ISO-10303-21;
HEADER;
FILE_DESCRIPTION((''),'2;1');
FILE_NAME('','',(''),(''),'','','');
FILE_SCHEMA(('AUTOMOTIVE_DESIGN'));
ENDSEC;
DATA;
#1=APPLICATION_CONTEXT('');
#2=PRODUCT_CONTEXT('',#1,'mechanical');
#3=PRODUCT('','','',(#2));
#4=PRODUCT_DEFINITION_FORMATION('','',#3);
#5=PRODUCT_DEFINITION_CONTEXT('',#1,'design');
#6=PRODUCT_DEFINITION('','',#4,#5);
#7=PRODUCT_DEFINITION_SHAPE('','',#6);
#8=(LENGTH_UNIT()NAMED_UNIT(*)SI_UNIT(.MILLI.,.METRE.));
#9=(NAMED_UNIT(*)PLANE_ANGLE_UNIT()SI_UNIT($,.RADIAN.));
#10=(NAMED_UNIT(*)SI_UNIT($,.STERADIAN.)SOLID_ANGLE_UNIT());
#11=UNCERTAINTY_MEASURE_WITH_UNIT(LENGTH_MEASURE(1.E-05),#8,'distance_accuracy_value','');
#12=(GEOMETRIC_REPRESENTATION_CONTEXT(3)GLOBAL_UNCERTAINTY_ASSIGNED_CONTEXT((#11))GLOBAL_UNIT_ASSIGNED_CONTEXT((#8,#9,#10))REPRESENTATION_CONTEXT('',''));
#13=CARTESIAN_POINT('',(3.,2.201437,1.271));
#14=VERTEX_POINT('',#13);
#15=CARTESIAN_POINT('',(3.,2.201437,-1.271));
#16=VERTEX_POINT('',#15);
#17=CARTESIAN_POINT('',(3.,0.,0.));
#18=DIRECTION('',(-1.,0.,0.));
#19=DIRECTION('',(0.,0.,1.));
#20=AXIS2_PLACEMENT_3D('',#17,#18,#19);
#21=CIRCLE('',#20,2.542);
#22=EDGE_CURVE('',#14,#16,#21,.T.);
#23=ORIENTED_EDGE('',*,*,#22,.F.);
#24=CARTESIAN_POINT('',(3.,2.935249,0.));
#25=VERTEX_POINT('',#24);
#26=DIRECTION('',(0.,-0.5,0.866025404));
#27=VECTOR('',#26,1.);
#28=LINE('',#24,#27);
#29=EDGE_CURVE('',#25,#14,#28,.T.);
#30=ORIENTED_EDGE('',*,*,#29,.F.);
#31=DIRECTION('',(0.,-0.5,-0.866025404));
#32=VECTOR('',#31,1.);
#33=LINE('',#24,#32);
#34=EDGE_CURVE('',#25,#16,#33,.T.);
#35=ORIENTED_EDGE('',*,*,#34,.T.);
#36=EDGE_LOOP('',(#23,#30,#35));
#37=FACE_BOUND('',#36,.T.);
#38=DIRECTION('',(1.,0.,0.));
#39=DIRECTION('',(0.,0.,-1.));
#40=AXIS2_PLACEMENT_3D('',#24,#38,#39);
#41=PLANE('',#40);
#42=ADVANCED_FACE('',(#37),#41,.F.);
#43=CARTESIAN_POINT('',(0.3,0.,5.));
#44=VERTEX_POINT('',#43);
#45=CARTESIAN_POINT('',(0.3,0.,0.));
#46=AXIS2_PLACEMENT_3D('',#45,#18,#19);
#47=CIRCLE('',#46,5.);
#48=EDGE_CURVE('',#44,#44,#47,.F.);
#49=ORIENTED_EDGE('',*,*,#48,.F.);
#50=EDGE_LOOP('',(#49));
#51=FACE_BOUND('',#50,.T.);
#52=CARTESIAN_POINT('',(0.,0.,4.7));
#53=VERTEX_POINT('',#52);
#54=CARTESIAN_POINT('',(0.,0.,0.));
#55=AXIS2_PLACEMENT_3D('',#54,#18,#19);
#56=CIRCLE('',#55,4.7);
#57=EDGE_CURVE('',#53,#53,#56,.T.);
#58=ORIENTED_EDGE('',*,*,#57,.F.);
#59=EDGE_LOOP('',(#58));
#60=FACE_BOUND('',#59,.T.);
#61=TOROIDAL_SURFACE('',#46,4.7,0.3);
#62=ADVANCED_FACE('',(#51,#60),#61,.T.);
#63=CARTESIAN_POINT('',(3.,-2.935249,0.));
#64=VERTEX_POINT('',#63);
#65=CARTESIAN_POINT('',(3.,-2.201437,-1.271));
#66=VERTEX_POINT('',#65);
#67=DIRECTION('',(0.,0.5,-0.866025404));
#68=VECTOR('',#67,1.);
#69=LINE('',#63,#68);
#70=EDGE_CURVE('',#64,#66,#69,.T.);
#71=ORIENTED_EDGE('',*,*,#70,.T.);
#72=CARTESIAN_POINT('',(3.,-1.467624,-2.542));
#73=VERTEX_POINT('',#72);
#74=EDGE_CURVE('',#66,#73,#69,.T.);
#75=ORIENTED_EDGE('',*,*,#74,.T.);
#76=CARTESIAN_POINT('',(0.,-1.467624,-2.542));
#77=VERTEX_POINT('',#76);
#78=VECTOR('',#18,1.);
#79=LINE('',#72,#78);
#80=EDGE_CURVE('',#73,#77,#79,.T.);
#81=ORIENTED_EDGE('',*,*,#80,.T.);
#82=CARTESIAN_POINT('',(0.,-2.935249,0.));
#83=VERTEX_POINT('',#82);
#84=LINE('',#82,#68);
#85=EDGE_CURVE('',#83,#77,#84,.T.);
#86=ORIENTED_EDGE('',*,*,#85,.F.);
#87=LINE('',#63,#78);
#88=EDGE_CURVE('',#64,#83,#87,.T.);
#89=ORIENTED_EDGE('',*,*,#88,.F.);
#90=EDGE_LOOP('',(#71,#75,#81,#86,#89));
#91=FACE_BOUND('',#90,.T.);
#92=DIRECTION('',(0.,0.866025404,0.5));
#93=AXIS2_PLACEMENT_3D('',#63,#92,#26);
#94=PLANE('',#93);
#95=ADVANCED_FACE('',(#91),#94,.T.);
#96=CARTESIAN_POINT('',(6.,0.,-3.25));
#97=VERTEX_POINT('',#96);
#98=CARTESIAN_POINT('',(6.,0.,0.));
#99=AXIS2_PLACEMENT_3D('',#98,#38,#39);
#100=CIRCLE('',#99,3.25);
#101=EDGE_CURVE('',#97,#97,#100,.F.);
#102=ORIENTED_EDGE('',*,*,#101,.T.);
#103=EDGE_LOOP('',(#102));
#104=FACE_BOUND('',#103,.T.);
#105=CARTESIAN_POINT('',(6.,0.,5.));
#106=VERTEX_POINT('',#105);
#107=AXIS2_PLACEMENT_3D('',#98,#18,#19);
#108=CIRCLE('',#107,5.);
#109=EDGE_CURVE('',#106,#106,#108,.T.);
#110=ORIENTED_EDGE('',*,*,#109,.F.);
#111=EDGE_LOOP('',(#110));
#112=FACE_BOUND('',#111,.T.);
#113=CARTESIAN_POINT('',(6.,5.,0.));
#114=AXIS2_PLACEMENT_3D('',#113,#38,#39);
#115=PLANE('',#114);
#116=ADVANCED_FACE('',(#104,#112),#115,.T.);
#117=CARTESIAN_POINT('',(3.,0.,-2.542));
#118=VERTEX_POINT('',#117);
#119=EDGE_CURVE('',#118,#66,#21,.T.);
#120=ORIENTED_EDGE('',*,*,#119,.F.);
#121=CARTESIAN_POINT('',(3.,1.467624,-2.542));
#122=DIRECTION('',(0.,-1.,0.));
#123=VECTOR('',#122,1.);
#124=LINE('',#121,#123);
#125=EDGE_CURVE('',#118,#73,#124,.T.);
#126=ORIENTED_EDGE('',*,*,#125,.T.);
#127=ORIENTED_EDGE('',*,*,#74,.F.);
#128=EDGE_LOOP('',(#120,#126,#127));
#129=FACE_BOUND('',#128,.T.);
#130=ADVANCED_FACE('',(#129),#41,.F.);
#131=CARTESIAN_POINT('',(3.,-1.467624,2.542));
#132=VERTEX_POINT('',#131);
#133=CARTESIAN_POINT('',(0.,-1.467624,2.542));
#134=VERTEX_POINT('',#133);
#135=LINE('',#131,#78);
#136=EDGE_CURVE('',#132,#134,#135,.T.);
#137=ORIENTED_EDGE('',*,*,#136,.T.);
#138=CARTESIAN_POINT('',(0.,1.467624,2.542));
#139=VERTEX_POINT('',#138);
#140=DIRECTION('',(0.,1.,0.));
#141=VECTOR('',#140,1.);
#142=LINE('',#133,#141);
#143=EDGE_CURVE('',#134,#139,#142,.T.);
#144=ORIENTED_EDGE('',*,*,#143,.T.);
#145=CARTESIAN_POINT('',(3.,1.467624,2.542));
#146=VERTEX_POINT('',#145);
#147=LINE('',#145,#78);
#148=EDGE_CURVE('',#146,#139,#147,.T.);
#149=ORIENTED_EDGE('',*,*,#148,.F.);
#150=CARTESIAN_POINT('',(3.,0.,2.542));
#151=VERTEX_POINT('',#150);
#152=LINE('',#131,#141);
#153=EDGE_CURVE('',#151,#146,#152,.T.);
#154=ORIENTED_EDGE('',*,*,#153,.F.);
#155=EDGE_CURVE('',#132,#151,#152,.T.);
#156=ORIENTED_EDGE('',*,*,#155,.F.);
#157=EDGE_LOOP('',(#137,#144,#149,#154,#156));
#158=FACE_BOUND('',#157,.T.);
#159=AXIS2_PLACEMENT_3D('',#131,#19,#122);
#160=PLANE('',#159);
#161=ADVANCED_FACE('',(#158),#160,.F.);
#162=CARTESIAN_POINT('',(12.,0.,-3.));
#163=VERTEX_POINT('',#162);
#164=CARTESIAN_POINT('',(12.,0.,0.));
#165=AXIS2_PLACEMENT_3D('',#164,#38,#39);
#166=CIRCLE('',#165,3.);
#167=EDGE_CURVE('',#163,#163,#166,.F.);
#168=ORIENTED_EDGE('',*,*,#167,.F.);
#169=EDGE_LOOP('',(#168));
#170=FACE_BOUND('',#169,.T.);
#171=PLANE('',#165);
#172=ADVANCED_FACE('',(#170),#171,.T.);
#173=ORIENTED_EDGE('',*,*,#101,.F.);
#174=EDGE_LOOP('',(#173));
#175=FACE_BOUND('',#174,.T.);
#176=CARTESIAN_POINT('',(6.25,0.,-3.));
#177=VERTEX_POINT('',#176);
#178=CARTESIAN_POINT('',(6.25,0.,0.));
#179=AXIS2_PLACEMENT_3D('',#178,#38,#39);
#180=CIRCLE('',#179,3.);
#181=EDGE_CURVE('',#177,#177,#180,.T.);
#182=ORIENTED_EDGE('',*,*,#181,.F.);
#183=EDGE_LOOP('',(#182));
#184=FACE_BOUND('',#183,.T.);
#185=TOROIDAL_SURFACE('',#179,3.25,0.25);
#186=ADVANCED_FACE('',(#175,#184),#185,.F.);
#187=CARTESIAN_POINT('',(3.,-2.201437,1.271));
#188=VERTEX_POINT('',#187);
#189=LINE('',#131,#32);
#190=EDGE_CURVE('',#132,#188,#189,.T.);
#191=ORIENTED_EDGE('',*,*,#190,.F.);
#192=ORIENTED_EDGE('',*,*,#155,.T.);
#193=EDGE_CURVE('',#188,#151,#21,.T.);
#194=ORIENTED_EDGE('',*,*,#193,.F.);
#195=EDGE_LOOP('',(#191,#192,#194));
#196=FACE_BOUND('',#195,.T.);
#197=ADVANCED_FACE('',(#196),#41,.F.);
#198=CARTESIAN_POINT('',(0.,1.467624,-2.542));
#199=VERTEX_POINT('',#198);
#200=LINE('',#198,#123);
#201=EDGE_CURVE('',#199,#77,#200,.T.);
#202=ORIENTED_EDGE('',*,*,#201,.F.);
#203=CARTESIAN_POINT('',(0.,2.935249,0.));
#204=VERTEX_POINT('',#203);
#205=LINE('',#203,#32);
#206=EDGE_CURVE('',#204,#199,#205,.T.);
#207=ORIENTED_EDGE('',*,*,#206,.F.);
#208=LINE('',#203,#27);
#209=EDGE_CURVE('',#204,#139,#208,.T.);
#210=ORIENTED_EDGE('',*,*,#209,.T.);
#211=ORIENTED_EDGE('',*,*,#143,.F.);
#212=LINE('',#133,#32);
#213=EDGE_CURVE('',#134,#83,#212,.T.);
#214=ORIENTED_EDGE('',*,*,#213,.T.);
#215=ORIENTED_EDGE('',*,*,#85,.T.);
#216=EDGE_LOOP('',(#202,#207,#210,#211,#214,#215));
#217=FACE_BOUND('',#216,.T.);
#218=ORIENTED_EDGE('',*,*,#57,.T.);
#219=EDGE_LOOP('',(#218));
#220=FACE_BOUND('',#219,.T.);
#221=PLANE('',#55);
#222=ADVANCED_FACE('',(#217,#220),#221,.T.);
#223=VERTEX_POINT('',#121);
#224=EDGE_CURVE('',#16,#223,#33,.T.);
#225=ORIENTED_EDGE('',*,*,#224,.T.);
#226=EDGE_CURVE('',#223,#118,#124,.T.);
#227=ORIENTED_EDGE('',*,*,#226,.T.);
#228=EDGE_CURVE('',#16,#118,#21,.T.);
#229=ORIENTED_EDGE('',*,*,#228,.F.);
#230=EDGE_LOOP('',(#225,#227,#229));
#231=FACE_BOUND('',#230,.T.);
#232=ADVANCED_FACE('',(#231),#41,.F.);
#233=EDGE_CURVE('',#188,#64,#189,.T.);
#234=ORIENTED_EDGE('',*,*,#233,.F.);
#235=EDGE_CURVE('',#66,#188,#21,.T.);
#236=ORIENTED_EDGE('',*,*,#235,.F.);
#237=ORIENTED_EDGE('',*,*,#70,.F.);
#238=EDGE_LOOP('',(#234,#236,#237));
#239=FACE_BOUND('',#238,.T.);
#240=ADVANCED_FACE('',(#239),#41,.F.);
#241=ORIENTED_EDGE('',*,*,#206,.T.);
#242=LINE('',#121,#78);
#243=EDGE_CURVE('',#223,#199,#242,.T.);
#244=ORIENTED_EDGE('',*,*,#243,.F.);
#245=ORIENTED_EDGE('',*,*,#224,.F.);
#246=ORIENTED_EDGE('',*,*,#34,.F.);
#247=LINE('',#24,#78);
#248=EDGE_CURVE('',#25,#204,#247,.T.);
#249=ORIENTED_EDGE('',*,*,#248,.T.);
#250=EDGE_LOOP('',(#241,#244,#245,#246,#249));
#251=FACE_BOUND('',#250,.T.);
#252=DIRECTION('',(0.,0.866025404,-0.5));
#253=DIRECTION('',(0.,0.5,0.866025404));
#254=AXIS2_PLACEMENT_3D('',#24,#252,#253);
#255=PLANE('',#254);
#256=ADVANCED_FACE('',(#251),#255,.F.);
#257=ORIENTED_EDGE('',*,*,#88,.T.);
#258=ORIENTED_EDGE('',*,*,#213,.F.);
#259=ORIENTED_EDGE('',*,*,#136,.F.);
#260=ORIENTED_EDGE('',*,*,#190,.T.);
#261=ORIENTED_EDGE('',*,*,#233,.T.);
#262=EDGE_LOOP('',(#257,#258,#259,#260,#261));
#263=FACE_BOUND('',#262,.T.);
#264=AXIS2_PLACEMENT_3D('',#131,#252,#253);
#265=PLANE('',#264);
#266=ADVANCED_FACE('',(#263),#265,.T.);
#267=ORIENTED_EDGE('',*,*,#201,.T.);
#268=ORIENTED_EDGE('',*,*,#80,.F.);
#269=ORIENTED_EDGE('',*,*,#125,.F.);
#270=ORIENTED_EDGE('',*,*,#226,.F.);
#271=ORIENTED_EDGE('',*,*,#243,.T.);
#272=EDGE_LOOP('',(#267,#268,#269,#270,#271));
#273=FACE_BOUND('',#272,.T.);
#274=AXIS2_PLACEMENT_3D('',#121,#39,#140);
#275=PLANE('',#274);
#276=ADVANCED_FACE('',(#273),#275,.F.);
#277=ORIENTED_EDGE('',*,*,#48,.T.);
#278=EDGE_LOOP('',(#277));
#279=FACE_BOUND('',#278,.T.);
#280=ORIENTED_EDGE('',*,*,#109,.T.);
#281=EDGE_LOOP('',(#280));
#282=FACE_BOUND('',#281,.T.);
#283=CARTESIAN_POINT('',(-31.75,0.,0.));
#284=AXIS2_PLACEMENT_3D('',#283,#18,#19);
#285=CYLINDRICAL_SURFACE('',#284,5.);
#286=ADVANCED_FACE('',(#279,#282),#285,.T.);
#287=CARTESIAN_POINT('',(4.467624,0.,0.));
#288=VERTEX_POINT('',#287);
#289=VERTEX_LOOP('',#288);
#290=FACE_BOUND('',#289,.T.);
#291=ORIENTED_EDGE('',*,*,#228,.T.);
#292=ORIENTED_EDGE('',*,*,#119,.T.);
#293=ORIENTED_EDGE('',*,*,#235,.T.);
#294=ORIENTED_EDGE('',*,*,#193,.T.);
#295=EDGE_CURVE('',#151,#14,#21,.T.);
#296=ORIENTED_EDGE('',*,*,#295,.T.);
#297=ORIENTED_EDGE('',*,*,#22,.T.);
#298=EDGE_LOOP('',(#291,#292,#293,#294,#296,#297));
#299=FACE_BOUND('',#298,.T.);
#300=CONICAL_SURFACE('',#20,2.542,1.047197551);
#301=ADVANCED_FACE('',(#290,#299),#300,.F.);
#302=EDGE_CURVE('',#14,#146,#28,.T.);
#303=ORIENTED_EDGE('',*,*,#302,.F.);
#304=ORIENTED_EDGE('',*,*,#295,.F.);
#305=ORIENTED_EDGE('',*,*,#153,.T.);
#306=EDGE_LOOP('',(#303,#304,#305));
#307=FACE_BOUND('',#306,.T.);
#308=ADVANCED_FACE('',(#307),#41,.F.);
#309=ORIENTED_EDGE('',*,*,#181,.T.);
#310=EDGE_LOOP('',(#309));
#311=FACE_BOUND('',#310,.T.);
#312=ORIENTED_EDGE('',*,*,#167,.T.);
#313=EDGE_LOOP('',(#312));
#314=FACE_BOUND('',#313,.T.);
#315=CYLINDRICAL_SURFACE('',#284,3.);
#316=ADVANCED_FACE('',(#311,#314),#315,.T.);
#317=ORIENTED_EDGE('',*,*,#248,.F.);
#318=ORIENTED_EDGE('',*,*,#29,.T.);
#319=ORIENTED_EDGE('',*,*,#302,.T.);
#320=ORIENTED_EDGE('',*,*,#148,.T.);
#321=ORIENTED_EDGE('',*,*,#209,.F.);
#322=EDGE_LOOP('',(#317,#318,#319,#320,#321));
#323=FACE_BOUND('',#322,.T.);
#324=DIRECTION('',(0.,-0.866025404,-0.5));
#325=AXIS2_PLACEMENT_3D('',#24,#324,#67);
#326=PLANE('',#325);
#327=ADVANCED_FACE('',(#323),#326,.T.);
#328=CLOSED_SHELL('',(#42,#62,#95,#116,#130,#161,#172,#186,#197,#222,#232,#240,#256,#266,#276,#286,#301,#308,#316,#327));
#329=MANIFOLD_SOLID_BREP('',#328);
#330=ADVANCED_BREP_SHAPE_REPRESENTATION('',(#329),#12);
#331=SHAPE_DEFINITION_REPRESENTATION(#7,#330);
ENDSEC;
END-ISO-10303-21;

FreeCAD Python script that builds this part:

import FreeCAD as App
import Part
import Sketcher
Q = App.Units.Quantity


def edges_at(feature, points):
    """Names of the edges that pass closest to the given points."""
    edges = feature.Shape.Edges
    near = lambda p: min(range(len(edges)), key=lambda i: edges[i].distToShape(Part.Vertex(*p))[0])
    return sorted({f"Edge{near(p) + 1}" for p in points})


def add_polygon(sketch, points):
    """Adds a closed chain of lines whose ends are joined by coincident constraints."""
    first, n = sketch.GeometryCount, len(points)
    for a, b in zip(points, points[1:] + points[:1]):
        sketch.addGeometry(Part.LineSegment(App.Vector(*a, 0), App.Vector(*b, 0)), False)
    for i in range(n):
        sketch.addConstraint(Sketcher.Constraint("Coincident", first + i, 2, first + (i + 1) % n, 1))

doc = App.newDocument("Part")
params = doc.addObject("Spreadsheet::Sheet", "Params")
for row, (alias, value) in enumerate([
    ("sketch1_width", "16 mm"),
    ("sketch1_width2", "6 mm"),
    ("sketch1_height", "5 mm"),
    ("sketch1_height2", "2 mm"),
    ("revolution_angle", "360 deg"),
    ("fillet_radius", "0.25 mm"),
    ("fillet2_radius", "0.3 mm"),
    ("sketch2_width", "3 mm"),
    ("groove_angle", "360 deg"),
    ("pocket1_length", "3 mm"),
    ("pocket2_length", "4 mm"),
], start=1):
    params.set(f"A{row}", alias)
    params.set(f"B{row}", "=" + value)
    params.setAlias(f"B{row}", alias)

body = doc.addObject("PartDesign::Body", "Body")

# Sketch on XY plane
sketch1 = body.newObject("Sketcher::SketchObject", "Sketch")
sketch1.AttachmentSupport = (doc.getObject("XY_Plane"), [""])
sketch1.MapMode = "FlatFace"
add_polygon(sketch1, [(0, 5), (0, 0), (16, 0), (16, 2.4455), (15.4455, 3), (6, 3), (6, 5)])  # lines 0-6
sketch1.addConstraint([
    Sketcher.Constraint("Vertical", 0),
    Sketcher.Constraint("Horizontal", 1),
    Sketcher.Constraint("Vertical", 2),
    Sketcher.Constraint("Horizontal", 4),
    Sketcher.Constraint("Vertical", 5),
    Sketcher.Constraint("Horizontal", 6),
    Sketcher.Constraint("Coincident", 0, 2, -1, 1),
    Sketcher.Constraint("DistanceX", 1, 1, 1, 2, 16.0),
    Sketcher.Constraint("DistanceX", 6, 2, 6, 1, 6.0),
    Sketcher.Constraint("DistanceY", 0, 2, 0, 1, 5.0),
    Sketcher.Constraint("DistanceY", 5, 1, 5, 2, 2.0),
    Sketcher.Constraint("Angle", 3, Q("135 deg")),
    Sketcher.Constraint("DistanceX", 4, 2, 4, 1, 9.4455),
])
sketch1.setExpression("Constraints[14]", "Params.sketch1_width")
sketch1.setExpression("Constraints[15]", "Params.sketch1_width2")
sketch1.setExpression("Constraints[16]", "Params.sketch1_height")
sketch1.setExpression("Constraints[17]", "Params.sketch1_height2")
revolution = body.newObject("PartDesign::Revolution", "Revolution")
revolution.Profile = sketch1
revolution.ReferenceAxis = (sketch1, ["H_Axis"])
revolution.setExpression("Angle", "Params.revolution_angle")
doc.recompute()

fillet = body.newObject("PartDesign::Fillet", "Fillet")
fillet.Base = (revolution, edges_at(revolution, [(6, -3, 0)]))
fillet.setExpression("Radius", "Params.fillet_radius")
doc.recompute()

fillet2 = body.newObject("PartDesign::Fillet", "Fillet001")
fillet2.Base = (fillet, edges_at(fillet, [(0, -5, 0)]))
fillet2.setExpression("Radius", "Params.fillet2_radius")

# Sketch on XY plane
sketch2 = body.newObject("Sketcher::SketchObject", "Sketch001")
sketch2.AttachmentSupport = (doc.getObject("XY_Plane"), [""])
sketch2.MapMode = "FlatFace"
add_polygon(sketch2, [(3, 2.542), (0, 2.542), (0, 0), (4.467624, 0)])  # lines 0-3
sketch2.addConstraint([
    Sketcher.Constraint("Horizontal", 0),
    Sketcher.Constraint("Vertical", 1),
    Sketcher.Constraint("Horizontal", 2),
    Sketcher.Constraint("Coincident", 1, 2, -1, 1),
    Sketcher.Constraint("DistanceX", 0, 2, 0, 1, 3.0),
    Sketcher.Constraint("Angle", 3, Q("120 deg")),
    Sketcher.Constraint("DistanceY", 1, 2, 1, 1, 2.542),
])
sketch2.setExpression("Constraints[8]", "Params.sketch2_width")
groove = body.newObject("PartDesign::Groove", "Groove")
groove.Profile = sketch2
groove.ReferenceAxis = (sketch2, ["H_Axis"])
groove.setExpression("Angle", "Params.groove_angle")

# Sketch on YZ plane
sketch3 = body.newObject("Sketcher::SketchObject", "Sketch002")
sketch3.AttachmentSupport = (doc.getObject("YZ_Plane"), [""])
sketch3.MapMode = "FlatFace"
add_polygon(sketch3, [(2.935249, 0), (1.467624, -2.542), (-1.467624, -2.542), (-2.935249, 0), (-1.467624, 2.542), (1.467624, 2.542)])  # lines 0-5
sketch3.addConstraint([
    Sketcher.Constraint("Horizontal", 1),
    Sketcher.Constraint("Horizontal", 4),
    Sketcher.Constraint("Symmetric", 0, 2, 3, 2, -1, 1),
    Sketcher.Constraint("Symmetric", 2, 2, 5, 2, -1, 1),
    Sketcher.Constraint("PointOnObject", 2, 2, -1),
    Sketcher.Constraint("Parallel", 2, 5),
    Sketcher.Constraint("Vertical", 1, 2, 3, 2),
    Sketcher.Constraint("Angle", 0, Q("-120 deg")),
    Sketcher.Constraint("DistanceY", 0, 2, -1, 1, 2.542),
    Sketcher.Constraint("DistanceX", 1, 2, 1, 1, 2.935249),
])
pocket1 = body.newObject("PartDesign::Pocket", "Pocket")
pocket1.Profile = sketch3
pocket1.setExpression("Length", "Params.pocket1_length")
pocket1.Reversed = True

# Sketch on YZ plane
sketch4 = body.newObject("Sketcher::SketchObject", "Sketch003")
sketch4.AttachmentSupport = (doc.getObject("YZ_Plane"), [""])
sketch4.MapMode = "FlatFace"
sketch4.AttachmentOffset = App.Placement(App.Vector(0, 0, 16), App.Rotation())
sketch4.addGeometry(Part.Circle(App.Vector(0, 0, 0), App.Vector(0, 0, 1), 7.875731), False)
sketch4.addConstraint([
    Sketcher.Constraint("Coincident", 0, 3, -1, 1),
    Sketcher.Constraint("Diameter", 0, 15.751461),
])
pocket2 = body.newObject("PartDesign::Pocket", "Pocket001")
pocket2.Profile = sketch4
pocket2.setExpression("Length", "Params.pocket2_length")

doc.recompute()
